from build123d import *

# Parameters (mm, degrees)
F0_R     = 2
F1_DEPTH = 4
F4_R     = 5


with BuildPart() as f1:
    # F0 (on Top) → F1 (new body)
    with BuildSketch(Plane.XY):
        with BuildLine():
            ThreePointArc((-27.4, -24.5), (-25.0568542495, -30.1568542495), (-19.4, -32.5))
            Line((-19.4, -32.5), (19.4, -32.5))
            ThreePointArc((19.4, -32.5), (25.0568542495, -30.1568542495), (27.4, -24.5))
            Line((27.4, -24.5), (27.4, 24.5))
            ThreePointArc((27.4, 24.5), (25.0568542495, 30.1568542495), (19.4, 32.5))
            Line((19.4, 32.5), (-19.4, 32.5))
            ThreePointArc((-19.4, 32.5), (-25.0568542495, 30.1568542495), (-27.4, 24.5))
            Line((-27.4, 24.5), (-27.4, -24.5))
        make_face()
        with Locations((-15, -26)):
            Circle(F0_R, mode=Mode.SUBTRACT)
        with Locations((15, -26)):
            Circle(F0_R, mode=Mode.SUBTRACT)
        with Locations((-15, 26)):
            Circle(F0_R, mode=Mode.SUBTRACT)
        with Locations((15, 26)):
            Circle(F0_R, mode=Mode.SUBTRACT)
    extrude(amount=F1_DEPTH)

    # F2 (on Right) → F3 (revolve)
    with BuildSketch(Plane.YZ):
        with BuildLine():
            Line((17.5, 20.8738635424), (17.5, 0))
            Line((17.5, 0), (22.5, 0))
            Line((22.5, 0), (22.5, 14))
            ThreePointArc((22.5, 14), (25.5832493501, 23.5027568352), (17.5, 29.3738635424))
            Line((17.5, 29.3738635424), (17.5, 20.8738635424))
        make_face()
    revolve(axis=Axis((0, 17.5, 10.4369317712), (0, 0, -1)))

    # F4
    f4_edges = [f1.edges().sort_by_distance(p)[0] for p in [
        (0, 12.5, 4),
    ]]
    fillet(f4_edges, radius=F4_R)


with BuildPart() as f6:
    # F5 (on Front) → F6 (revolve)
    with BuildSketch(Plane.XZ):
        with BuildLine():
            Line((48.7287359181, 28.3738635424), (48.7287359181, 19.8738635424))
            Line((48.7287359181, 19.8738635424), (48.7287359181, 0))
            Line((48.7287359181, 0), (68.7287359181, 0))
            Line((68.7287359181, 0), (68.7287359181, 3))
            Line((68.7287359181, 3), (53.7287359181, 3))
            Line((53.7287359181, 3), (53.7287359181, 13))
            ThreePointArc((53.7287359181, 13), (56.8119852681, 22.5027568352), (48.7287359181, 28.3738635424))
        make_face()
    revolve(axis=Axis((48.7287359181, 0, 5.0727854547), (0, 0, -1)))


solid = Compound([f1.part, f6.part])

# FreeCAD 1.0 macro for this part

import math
import FreeCAD as App
import Part
import Sketcher
from FreeCAD import Vector


def edges_at(feature, points):
    """Names of the edges that pass closest to the given points."""
    edges = feature.Shape.Edges
    near = lambda p: min(range(len(edges)), key=lambda i: edges[i].distToShape(Part.Vertex(*p))[0])
    return sorted({f"Edge{near(p) + 1}" for p in points})

doc = App.newDocument("Part")
body = doc.addObject("PartDesign::Body", "Body")

# Sketch on XY plane
sketch1 = doc.addObject("Sketcher::SketchObject", "Sketch")
body.addObject(sketch1)
sketch1.AttachmentSupport = (doc.XY_Plane, [""])
sketch1.MapMode = "FlatFace"
sketch1.addGeometry([
    Part.ArcOfCircle(Part.Circle(Vector(-19.4, -24.5, 0), Vector(0, 0, 1), 8), math.radians(180), math.radians(270)),  # 0
    Part.LineSegment(Vector(-19.4, -32.5, 0), Vector(19.4, -32.5, 0)),  # 1
    Part.ArcOfCircle(Part.Circle(Vector(19.4, -24.5, 0), Vector(0, 0, 1), 8), math.radians(-90), math.radians(0)),  # 2
    Part.LineSegment(Vector(27.4, -24.5, 0), Vector(27.4, 24.5, 0)),  # 3
    Part.ArcOfCircle(Part.Circle(Vector(19.4, 24.5, 0), Vector(0, 0, 1), 8), math.radians(0), math.radians(90)),  # 4
    Part.LineSegment(Vector(19.4, 32.5, 0), Vector(-19.4, 32.5, 0)),  # 5
    Part.ArcOfCircle(Part.Circle(Vector(-19.4, 24.5, 0), Vector(0, 0, 1), 8), math.radians(90), math.radians(180)),  # 6
    Part.LineSegment(Vector(-27.4, 24.5, 0), Vector(-27.4, -24.5, 0)),  # 7
    Part.Circle(Vector(-15, -26, 0), Vector(0, 0, 1), 2),  # 8
    Part.Circle(Vector(15, -26, 0), Vector(0, 0, 1), 2),  # 9
    Part.Circle(Vector(-15, 26, 0), Vector(0, 0, 1), 2),  # 10
    Part.Circle(Vector(15, 26, 0), Vector(0, 0, 1), 2),  # 11
], False)
sketch1.addConstraint([
    Sketcher.Constraint("Tangent", 0, 2, 1, 1),
    Sketcher.Constraint("Tangent", 1, 2, 2, 1),
    Sketcher.Constraint("Tangent", 2, 2, 3, 1),
    Sketcher.Constraint("Tangent", 3, 2, 4, 1),
    Sketcher.Constraint("Tangent", 4, 2, 5, 1),
    Sketcher.Constraint("Tangent", 5, 2, 6, 1),
    Sketcher.Constraint("Tangent", 6, 2, 7, 1),
    Sketcher.Constraint("Tangent", 7, 2, 0, 1),
    Sketcher.Constraint("Horizontal", 1),
    Sketcher.Constraint("Vertical", 3),
    Sketcher.Constraint("Horizontal", 5),
    Sketcher.Constraint("Vertical", 7),
    Sketcher.Constraint("Equal", 0, 2),
    Sketcher.Constraint("Equal", 2, 4),
    Sketcher.Constraint("Equal", 4, 6),
    Sketcher.Constraint("Equal", 8, 9),
    Sketcher.Constraint("Equal", 9, 10),
    Sketcher.Constraint("Equal", 10, 11),
    Sketcher.Constraint("Symmetric", 0, 3, 4, 3, -1, 1),
    Sketcher.Constraint("Symmetric", 9, 3, 10, 3, -1, 1),
    Sketcher.Constraint("Symmetric", 8, 3, 11, 3, -1, 1),
    Sketcher.Constraint("Symmetric", 8, 3, 9, 3, -2),
    Sketcher.Constraint("Diameter", 8, 4.0),
    Sketcher.Constraint("Radius", 0, 8.0),
    Sketcher.Constraint("DistanceY", 3, 1, 3, 2, 49.0),
    Sketcher.Constraint("DistanceX", 1, 1, 1, 2, 38.8),
    Sketcher.Constraint("DistanceX", 8, 3, -1, 1, 15.0),
    Sketcher.Constraint("DistanceY", 8, 3, -1, 1, 26.0),
])
pad1 = doc.addObject("PartDesign::Pad", "Pad")
body.addObject(pad1)
pad1.Profile = sketch1
pad1.Length = 4

# Sketch on YZ plane
sketch2 = doc.addObject("Sketcher::SketchObject", "Sketch001")
body.addObject(sketch2)
sketch2.AttachmentSupport = (doc.YZ_Plane, [""])
sketch2.MapMode = "FlatFace"
sketch2.addGeometry([
    Part.LineSegment(Vector(18, 0, 0), Vector(22, 0, 0)),
    Part.LineSegment(Vector(22, 0, 0), Vector(22, 14, 0)),
    Part.ArcOfCircle(Part.Circle(Vector(18, 21, 0), Vector(0, 0, 1), 8), math.radians(-54), math.radians(90)),
    Part.LineSegment(Vector(18, 29, 0), Vector(18, 0, 0)),
], False)
sketch2.addGeometry(Part.LineSegment(Vector(18, 29, 0), Vector(18, 0, 0)), True)  # axis
sketch2.addConstraint([
    Sketcher.Constraint("Coincident", 0, 2, 1, 1),
    Sketcher.Constraint("Coincident", 1, 2, 2, 1),
    Sketcher.Constraint("Coincident", 2, 2, 3, 1),
    Sketcher.Constraint("Coincident", 3, 2, 0, 1),
    Sketcher.Constraint("Horizontal", 0),
    Sketcher.Constraint("Vertical", 1),
    Sketcher.Constraint("Vertical", 3),
    Sketcher.Constraint("Vertical", 4),
    Sketcher.Constraint("Coincident", 4, 1, 2, 2),
    Sketcher.Constraint("PointOnObject", 0, 2, -1),
    Sketcher.Constraint("PointOnObject", 4, 2, -1),
    Sketcher.Constraint("Radius", 2, 8.5),
    Sketcher.Constraint("DistanceX", 0, 1, 0, 2, 5.0),
    Sketcher.Constraint("DistanceY", 1, 1, 1, 2, 14.0),
    Sketcher.Constraint("DistanceX", 2, 3, 0, 2, 5.0),
    Sketcher.Constraint("DistanceX", -1, 1, 2, 3, 17.5),
])
revolution = doc.addObject("PartDesign::Revolution", "Revolution")
body.addObject(revolution)
revolution.Profile = sketch2
revolution.ReferenceAxis = (sketch2, ["Axis0"])
revolution.Angle = 360
doc.recompute()

fillet = doc.addObject("PartDesign::Fillet", "Fillet")
body.addObject(fillet)
fillet.Base = (revolution, edges_at(revolution, [(0, 12.5, 4)]))
fillet.Radius = 5
body2 = doc.addObject("PartDesign::Body", "Body001")

# Sketch on XZ plane
sketch3 = doc.addObject("Sketcher::SketchObject", "Sketch002")
body2.addObject(sketch3)
sketch3.AttachmentSupport = (doc.getObject("XZ_Plane001"), [""])
sketch3.MapMode = "FlatFace"
sketch3.addGeometry([
    Part.LineSegment(Vector(48.7, 28.4, 0), Vector(48.7, 0, 0)),  # 0
    Part.LineSegment(Vector(48.7, 0, 0), Vector(68.7, 0, 0)),  # 1
    Part.LineSegment(Vector(68.7, 0, 0), Vector(68.7, 3, 0)),  # 2
    Part.LineSegment(Vector(68.7, 3, 0), Vector(53.7, 3, 0)),  # 3
    Part.LineSegment(Vector(53.7, 3, 0), Vector(53.7, 13, 0)),  # 4
    Part.ArcOfCircle(Part.Circle(Vector(48.7, 19.9, 0), Vector(0, 0, 1), 8.5), math.radians(-54), math.radians(90)),  # 5
], False)
sketch3.addGeometry(Part.LineSegment(Vector(48.7, 28.4, 0), Vector(48.7, 0, 0)), True)  # axis
sketch3.addConstraint([
    Sketcher.Constraint("Coincident", 0, 2, 1, 1),
    Sketcher.Constraint("Coincident", 1, 2, 2, 1),
    Sketcher.Constraint("Coincident", 2, 2, 3, 1),
    Sketcher.Constraint("Coincident", 3, 2, 4, 1),
    Sketcher.Constraint("Coincident", 4, 2, 5, 1),
    Sketcher.Constraint("Coincident", 5, 2, 0, 1),
    Sketcher.Constraint("Vertical", 0),
    Sketcher.Constraint("Horizontal", 1),
    Sketcher.Constraint("Vertical", 2),
    Sketcher.Constraint("Horizontal", 3),
    Sketcher.Constraint("Vertical", 4),
    Sketcher.Constraint("Vertical", 6),
    Sketcher.Constraint("Coincident", 6, 1, 5, 2),
    Sketcher.Constraint("PointOnObject", 0, 2, -1),
    Sketcher.Constraint("PointOnObject", 6, 2, -1),
    Sketcher.Constraint("Vertical", 5, 3, 0, 2),
    Sketcher.Constraint("Radius", 5, 8.5),
    Sketcher.Constraint("DistanceX", 1, 1, 1, 2, 20.0),
    Sketcher.Constraint("DistanceX", 3, 2, 3, 1, 15.0),
    Sketcher.Constraint("DistanceY", 2, 1, 2, 2, 3.0),
    Sketcher.Constraint("DistanceY", 4, 1, 4, 2, 10.0),
    Sketcher.Constraint("DistanceX", -1, 1, 5, 3, 48.728736),
])
revolution2 = doc.addObject("PartDesign::Revolution", "Revolution001")
body2.addObject(revolution2)
revolution2.Profile = sketch3
revolution2.ReferenceAxis = (sketch3, ["Axis0"])
revolution2.Angle = 360

doc.recompute()
